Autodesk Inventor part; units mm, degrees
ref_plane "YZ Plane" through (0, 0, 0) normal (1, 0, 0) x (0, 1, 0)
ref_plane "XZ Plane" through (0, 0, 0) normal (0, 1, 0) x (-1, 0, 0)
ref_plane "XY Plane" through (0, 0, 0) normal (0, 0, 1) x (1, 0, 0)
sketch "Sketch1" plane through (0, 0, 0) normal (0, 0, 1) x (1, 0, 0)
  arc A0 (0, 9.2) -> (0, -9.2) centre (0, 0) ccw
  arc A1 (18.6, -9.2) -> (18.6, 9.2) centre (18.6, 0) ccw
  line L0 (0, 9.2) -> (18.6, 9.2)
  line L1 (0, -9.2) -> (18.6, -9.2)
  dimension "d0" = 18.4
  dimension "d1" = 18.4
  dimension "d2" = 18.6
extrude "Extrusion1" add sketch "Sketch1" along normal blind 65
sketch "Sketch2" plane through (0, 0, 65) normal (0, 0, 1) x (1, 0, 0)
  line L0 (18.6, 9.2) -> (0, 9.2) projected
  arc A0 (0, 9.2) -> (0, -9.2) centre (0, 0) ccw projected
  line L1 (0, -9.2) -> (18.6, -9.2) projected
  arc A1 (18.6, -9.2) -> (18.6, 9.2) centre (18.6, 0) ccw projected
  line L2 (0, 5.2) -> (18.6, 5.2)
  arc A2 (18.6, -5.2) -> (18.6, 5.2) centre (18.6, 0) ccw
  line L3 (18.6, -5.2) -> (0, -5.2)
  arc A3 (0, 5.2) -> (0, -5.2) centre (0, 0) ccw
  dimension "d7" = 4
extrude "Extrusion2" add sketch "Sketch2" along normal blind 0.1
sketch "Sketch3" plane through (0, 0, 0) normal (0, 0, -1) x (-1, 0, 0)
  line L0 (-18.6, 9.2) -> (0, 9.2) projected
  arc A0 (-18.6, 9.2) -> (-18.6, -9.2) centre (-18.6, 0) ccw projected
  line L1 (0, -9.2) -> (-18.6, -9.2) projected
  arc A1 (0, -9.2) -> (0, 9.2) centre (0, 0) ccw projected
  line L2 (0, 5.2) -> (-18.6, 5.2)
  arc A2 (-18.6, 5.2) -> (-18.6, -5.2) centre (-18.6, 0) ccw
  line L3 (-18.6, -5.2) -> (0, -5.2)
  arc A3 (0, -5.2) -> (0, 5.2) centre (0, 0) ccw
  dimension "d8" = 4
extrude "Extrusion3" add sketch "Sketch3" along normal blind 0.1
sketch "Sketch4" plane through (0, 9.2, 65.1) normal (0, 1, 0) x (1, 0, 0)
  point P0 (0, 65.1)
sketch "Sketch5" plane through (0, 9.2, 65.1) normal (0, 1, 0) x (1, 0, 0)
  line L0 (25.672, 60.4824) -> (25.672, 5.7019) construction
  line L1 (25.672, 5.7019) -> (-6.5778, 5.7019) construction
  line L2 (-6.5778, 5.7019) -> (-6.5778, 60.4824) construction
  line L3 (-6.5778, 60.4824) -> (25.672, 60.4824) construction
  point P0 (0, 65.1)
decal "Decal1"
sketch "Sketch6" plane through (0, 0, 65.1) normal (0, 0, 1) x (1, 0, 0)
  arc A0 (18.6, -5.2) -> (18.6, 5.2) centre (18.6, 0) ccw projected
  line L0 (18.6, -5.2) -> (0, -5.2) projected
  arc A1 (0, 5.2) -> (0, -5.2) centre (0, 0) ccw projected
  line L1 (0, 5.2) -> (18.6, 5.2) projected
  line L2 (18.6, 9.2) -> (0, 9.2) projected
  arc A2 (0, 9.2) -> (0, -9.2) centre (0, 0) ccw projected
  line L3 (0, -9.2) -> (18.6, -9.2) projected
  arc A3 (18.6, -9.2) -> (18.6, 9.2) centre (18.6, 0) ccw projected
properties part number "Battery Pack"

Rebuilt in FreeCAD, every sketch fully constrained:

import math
import FreeCAD as App
import Part
import Sketcher

V = App.Vector

doc = App.newDocument("Part")
body = doc.addObject("PartDesign::Body", "Body")

# Sketch on XY plane
sketch1 = body.newObject("Sketcher::SketchObject", "Sketch")
sketch1.AttachmentSupport = (doc.getObject("XY_Plane"), [""])
sketch1.MapMode = "FlatFace"
sketch1.addGeometry(Part.LineSegment(V(19, 9, 0), V(0, 9, 0)), False)
sketch1.addGeometry(Part.ArcOfCircle(Part.Circle(V(0, 0, 0), V(0, 0, 1), 9), math.radians(90), math.radians(270)), False)
sketch1.addGeometry(Part.LineSegment(V(0, -9, 0), V(19, -9, 0)), False)
sketch1.addGeometry(Part.ArcOfCircle(Part.Circle(V(19, 0, 0), V(0, 0, 1), 9), math.radians(-90), math.radians(90)), False)
sketch1.addConstraint(Sketcher.Constraint("Tangent", 0, 2, 1, 1))
sketch1.addConstraint(Sketcher.Constraint("Tangent", 1, 2, 2, 1))
sketch1.addConstraint(Sketcher.Constraint("Tangent", 2, 2, 3, 1))
sketch1.addConstraint(Sketcher.Constraint("Tangent", 3, 2, 0, 1))
sketch1.addConstraint(Sketcher.Constraint("Horizontal", 0))
sketch1.addConstraint(Sketcher.Constraint("Horizontal", 2))
sketch1.addConstraint(Sketcher.Constraint("Coincident", 1, 3, -1, 1))
sketch1.addConstraint(Sketcher.Constraint("Radius", 1, 9.2))
sketch1.addConstraint(Sketcher.Constraint("DistanceX", 0, 2, 0, 1, 18.6))
pad1 = body.newObject("PartDesign::Pad", "Pad")
pad1.Profile = sketch1
pad1.Length = 65

# Sketch on XY plane
sketch2 = body.newObject("Sketcher::SketchObject", "Sketch001")
sketch2.AttachmentSupport = (doc.getObject("XY_Plane"), [""])
sketch2.MapMode = "FlatFace"
sketch2.AttachmentOffset = App.Placement(V(0, 0, 65), App.Rotation())
sketch2.addGeometry(Part.ArcOfCircle(Part.Circle(V(19, 0, 0), V(0, 0, 1), 9), math.radians(-90), math.radians(90)), False)
sketch2.addGeometry(Part.LineSegment(V(19, 9, 0), V(0, 9, 0)), False)
sketch2.addGeometry(Part.ArcOfCircle(Part.Circle(V(0, 0, 0), V(0, 0, 1), 9), math.radians(90), math.radians(270)), False)
sketch2.addGeometry(Part.LineSegment(V(0, -9, 0), V(19, -9, 0)), False)
sketch2.addGeometry(Part.ArcOfCircle(Part.Circle(V(0, 0, 0), V(0, 0, 1), 5), math.radians(90), math.radians(270)), False)
sketch2.addGeometry(Part.LineSegment(V(0, 5, 0), V(19, 5, 0)), False)
sketch2.addGeometry(Part.ArcOfCircle(Part.Circle(V(19, 0, 0), V(0, 0, 1), 5), math.radians(-90), math.radians(90)), False)
sketch2.addGeometry(Part.LineSegment(V(19, -5, 0), V(0, -5, 0)), False)
sketch2.addConstraint(Sketcher.Constraint("Tangent", 0, 2, 1, 1))
sketch2.addConstraint(Sketcher.Constraint("Tangent", 1, 2, 2, 1))
sketch2.addConstraint(Sketcher.Constraint("Tangent", 2, 2, 3, 1))
sketch2.addConstraint(Sketcher.Constraint("Tangent", 3, 2, 0, 1))
sketch2.addConstraint(Sketcher.Constraint("Tangent", 4, 1, 5, 1))
sketch2.addConstraint(Sketcher.Constraint("Tangent", 5, 2, 6, 2))
sketch2.addConstraint(Sketcher.Constraint("Tangent", 6, 1, 7, 1))
sketch2.addConstraint(Sketcher.Constraint("Tangent", 7, 2, 4, 2))
sketch2.addConstraint(Sketcher.Constraint("Horizontal", 1))
sketch2.addConstraint(Sketcher.Constraint("Horizontal", 3))
sketch2.addConstraint(Sketcher.Constraint("Horizontal", 5))
sketch2.addConstraint(Sketcher.Constraint("Horizontal", 7))
sketch2.addConstraint(Sketcher.Constraint("Coincident", 2, 3, -1, 1))
sketch2.addConstraint(Sketcher.Constraint("Coincident", 4, 3, -1, 1))
sketch2.addConstraint(Sketcher.Constraint("Vertical", 6, 3, 0, 2))
sketch2.addConstraint(Sketcher.Constraint("DistanceY", 4, 1, 1, 2, 4.0))
sketch2.addConstraint(Sketcher.Constraint("Radius", 0, 9.2))
sketch2.addConstraint(Sketcher.Constraint("DistanceX", 1, 2, 1, 1, 18.6))
pad2 = body.newObject("PartDesign::Pad", "Pad001")
pad2.Profile = sketch2
pad2.Length = 0.1

# Sketch on XY plane
sketch3 = body.newObject("Sketcher::SketchObject", "Sketch002")
sketch3.AttachmentSupport = (doc.getObject("XY_Plane"), [""])
sketch3.MapMode = "FlatFace"
sketch3.addGeometry(Part.LineSegment(V(0, 9, 0), V(19, 9, 0)), False)
sketch3.addGeometry(Part.ArcOfCircle(Part.Circle(V(19, 0, 0), V(0, 0, 1), 9), math.radians(-90), math.radians(90)), False)
sketch3.addGeometry(Part.LineSegment(V(19, -9, 0), V(0, -9, 0)), False)
sketch3.addGeometry(Part.ArcOfCircle(Part.Circle(V(0, 0, 0), V(0, 0, 1), 9), math.radians(90), math.radians(270)), False)
sketch3.addGeometry(Part.LineSegment(V(19, 5, 0), V(0, 5, 0)), False)
sketch3.addGeometry(Part.ArcOfCircle(Part.Circle(V(0, 0, 0), V(0, 0, 1), 5), math.radians(90), math.radians(270)), False)
sketch3.addGeometry(Part.LineSegment(V(0, -5, 0), V(19, -5, 0)), False)
sketch3.addGeometry(Part.ArcOfCircle(Part.Circle(V(19, 0, 0), V(0, 0, 1), 5), math.radians(-90), math.radians(90)), False)
sketch3.addConstraint(Sketcher.Constraint("Tangent", 0, 2, 1, 2))
sketch3.addConstraint(Sketcher.Constraint("Tangent", 1, 1, 2, 1))
sketch3.addConstraint(Sketcher.Constraint("Tangent", 2, 2, 3, 2))
sketch3.addConstraint(Sketcher.Constraint("Tangent", 3, 1, 0, 1))
sketch3.addConstraint(Sketcher.Constraint("Tangent", 4, 2, 5, 1))
sketch3.addConstraint(Sketcher.Constraint("Tangent", 5, 2, 6, 1))
sketch3.addConstraint(Sketcher.Constraint("Tangent", 6, 2, 7, 1))
sketch3.addConstraint(Sketcher.Constraint("Tangent", 7, 2, 4, 1))
sketch3.addConstraint(Sketcher.Constraint("Horizontal", 0))
sketch3.addConstraint(Sketcher.Constraint("Horizontal", 2))
sketch3.addConstraint(Sketcher.Constraint("Horizontal", 4))
sketch3.addConstraint(Sketcher.Constraint("Horizontal", 6))
sketch3.addConstraint(Sketcher.Constraint("Coincident", 3, 3, -1, 1))
sketch3.addConstraint(Sketcher.Constraint("Coincident", 5, 3, -1, 1))
sketch3.addConstraint(Sketcher.Constraint("Vertical", 7, 3, 0, 2))
sketch3.addConstraint(Sketcher.Constraint("DistanceY", 4, 2, 3, 1, 4.0))
sketch3.addConstraint(Sketcher.Constraint("Radius", 1, 9.2))
sketch3.addConstraint(Sketcher.Constraint("DistanceX", 0, 1, 0, 2, 18.6))
pad3 = body.newObject("PartDesign::Pad", "Pad002")
pad3.Profile = sketch3
pad3.Length = 0.1
pad3.Reversed = True

doc.recompute()
